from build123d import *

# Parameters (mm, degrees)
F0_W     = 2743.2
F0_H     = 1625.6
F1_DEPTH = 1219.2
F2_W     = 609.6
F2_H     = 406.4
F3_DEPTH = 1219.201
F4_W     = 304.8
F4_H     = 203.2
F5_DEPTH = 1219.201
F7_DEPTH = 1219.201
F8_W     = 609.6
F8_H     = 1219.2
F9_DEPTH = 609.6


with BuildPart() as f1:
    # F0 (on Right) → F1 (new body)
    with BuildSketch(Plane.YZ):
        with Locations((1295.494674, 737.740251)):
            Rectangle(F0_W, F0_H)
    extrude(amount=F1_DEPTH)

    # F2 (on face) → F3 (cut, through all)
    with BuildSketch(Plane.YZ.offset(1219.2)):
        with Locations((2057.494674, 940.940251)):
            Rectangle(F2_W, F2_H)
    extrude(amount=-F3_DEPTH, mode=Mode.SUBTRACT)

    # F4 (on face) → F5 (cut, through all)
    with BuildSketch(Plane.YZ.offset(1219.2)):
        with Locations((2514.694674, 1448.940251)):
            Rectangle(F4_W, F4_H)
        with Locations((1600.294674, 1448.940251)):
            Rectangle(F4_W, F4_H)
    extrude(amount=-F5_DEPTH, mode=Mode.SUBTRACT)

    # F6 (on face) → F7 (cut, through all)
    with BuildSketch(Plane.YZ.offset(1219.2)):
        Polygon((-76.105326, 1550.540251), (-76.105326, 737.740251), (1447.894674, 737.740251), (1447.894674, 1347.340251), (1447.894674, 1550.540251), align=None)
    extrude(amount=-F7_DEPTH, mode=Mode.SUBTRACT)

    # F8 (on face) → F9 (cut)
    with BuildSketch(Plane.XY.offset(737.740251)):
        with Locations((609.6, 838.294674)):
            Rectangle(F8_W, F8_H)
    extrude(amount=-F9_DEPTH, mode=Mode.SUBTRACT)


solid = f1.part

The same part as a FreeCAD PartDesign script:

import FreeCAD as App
import Part
import Sketcher
Q = App.Units.Quantity

doc = App.newDocument("Part")
params = doc.addObject("Spreadsheet::Sheet", "Params")
for row, (alias, value) in enumerate([
    ("sketch1_width", "108 in"),
    ("sketch1_height", "64 in"),
    ("pad1_length", "48 in"),
    ("sketch2_width", "24 in"),
    ("sketch2_height", "16 in"),
    ("sketch3_width", "12 in"),
    ("sketch3_height", "8 in"),
    ("sketch4_width", "60 in"),
    ("sketch4_height", "32 in"),
    ("sketch5_width", "24 in"),
    ("sketch5_height", "48 in"),
    ("pocket4_length", "24 in"),
], start=1):
    params.set(f"A{row}", alias)
    params.set(f"B{row}", "=" + value)
    params.setAlias(f"B{row}", alias)

body = doc.addObject("PartDesign::Body", "Body")

sketch1 = body.newObject("Sketcher::SketchObject", "Sketch")
sketch1.AttachmentSupport = (doc.getObject("YZ_Plane"), [""])
sketch1.MapMode = "FlatFace"
sketch1.addGeometry([
    Part.LineSegment(App.Vector(-76, 1551, 0), App.Vector(-76, -75, 0)),
    Part.LineSegment(App.Vector(-76, -75, 0), App.Vector(2667, -75, 0)),
    Part.LineSegment(App.Vector(2667, -75, 0), App.Vector(2667, 1551, 0)),
    Part.LineSegment(App.Vector(2667, 1551, 0), App.Vector(-76, 1551, 0)),
], False)
sketch1.addConstraint([
    Sketcher.Constraint("Coincident", 0, 2, 1, 1),
    Sketcher.Constraint("Coincident", 1, 2, 2, 1),
    Sketcher.Constraint("Coincident", 2, 2, 3, 1),
    Sketcher.Constraint("Coincident", 3, 2, 0, 1),
    Sketcher.Constraint("Vertical", 0),
    Sketcher.Constraint("Horizontal", 1),
    Sketcher.Constraint("Vertical", 2),
    Sketcher.Constraint("Horizontal", 3),
    Sketcher.Constraint("DistanceX", 1, 1, 1, 2, Q("108 in")),
    Sketcher.Constraint("DistanceY", 0, 2, 0, 1, Q("64 in")),
    Sketcher.Constraint("DistanceY", 0, 2, -1, 1, Q("75.059749 mm")),
    Sketcher.Constraint("DistanceX", 0, 2, -1, 1, Q("76.105326 mm")),
])
sketch1.setExpression("Constraints[8]", "Params.sketch1_width")
sketch1.setExpression("Constraints[9]", "Params.sketch1_height")
pad1 = body.newObject("PartDesign::Pad", "Pad")
pad1.Profile = sketch1
pad1.setExpression("Length", "Params.pad1_length")

sketch2 = body.newObject("Sketcher::SketchObject", "Sketch001")
sketch2.AttachmentSupport = (doc.getObject("YZ_Plane"), [""])
sketch2.MapMode = "FlatFace"
sketch2.AttachmentOffset = App.Placement(App.Vector(0, 0, 48 * 25.4), App.Rotation())
sketch2.addGeometry([
    Part.LineSegment(App.Vector(1753, 1144, 0), App.Vector(1753, 738, 0)),
    Part.LineSegment(App.Vector(1753, 738, 0), App.Vector(2362, 738, 0)),
    Part.LineSegment(App.Vector(2362, 738, 0), App.Vector(2362, 1144, 0)),
    Part.LineSegment(App.Vector(2362, 1144, 0), App.Vector(1753, 1144, 0)),
], False)
sketch2.addConstraint([
    Sketcher.Constraint("Coincident", 0, 2, 1, 1),
    Sketcher.Constraint("Coincident", 1, 2, 2, 1),
    Sketcher.Constraint("Coincident", 2, 2, 3, 1),
    Sketcher.Constraint("Coincident", 3, 2, 0, 1),
    Sketcher.Constraint("Vertical", 0),
    Sketcher.Constraint("Horizontal", 1),
    Sketcher.Constraint("Vertical", 2),
    Sketcher.Constraint("Horizontal", 3),
    Sketcher.Constraint("DistanceX", 1, 1, 1, 2, Q("24 in")),
    Sketcher.Constraint("DistanceY", 0, 2, 0, 1, Q("16 in")),
    Sketcher.Constraint("DistanceY", -1, 1, 0, 2, Q("737.740251 mm")),
    Sketcher.Constraint("DistanceX", -1, 1, 0, 2, Q("1752.694674 mm")),
])
sketch2.setExpression("Constraints[8]", "Params.sketch2_width")
sketch2.setExpression("Constraints[9]", "Params.sketch2_height")
pocket1 = body.newObject("PartDesign::Pocket", "Pocket")
pocket1.Profile = sketch2
pocket1.Type = "ThroughAll"

sketch3 = body.newObject("Sketcher::SketchObject", "Sketch002")
sketch3.AttachmentSupport = (doc.getObject("YZ_Plane"), [""])
sketch3.MapMode = "FlatFace"
sketch3.AttachmentOffset = App.Placement(App.Vector(0, 0, 48 * 25.4), App.Rotation())
sketch3.addGeometry([
    Part.LineSegment(App.Vector(2362, 1551, 0), App.Vector(2362, 1347, 0)),
    Part.LineSegment(App.Vector(2362, 1347, 0), App.Vector(2667, 1347, 0)),
    Part.LineSegment(App.Vector(2667, 1347, 0), App.Vector(2667, 1551, 0)),
    Part.LineSegment(App.Vector(2667, 1551, 0), App.Vector(2362, 1551, 0)),
    Part.LineSegment(App.Vector(1448, 1551, 0), App.Vector(1448, 1347, 0)),
    Part.LineSegment(App.Vector(1448, 1347, 0), App.Vector(1753, 1347, 0)),
    Part.LineSegment(App.Vector(1753, 1347, 0), App.Vector(1753, 1551, 0)),
    Part.LineSegment(App.Vector(1753, 1551, 0), App.Vector(1448, 1551, 0)),
], False)
sketch3.addConstraint([
    Sketcher.Constraint("Coincident", 0, 2, 1, 1),
    Sketcher.Constraint("Coincident", 1, 2, 2, 1),
    Sketcher.Constraint("Coincident", 2, 2, 3, 1),
    Sketcher.Constraint("Coincident", 3, 2, 0, 1),
    Sketcher.Constraint("Coincident", 4, 2, 5, 1),
    Sketcher.Constraint("Coincident", 5, 2, 6, 1),
    Sketcher.Constraint("Coincident", 6, 2, 7, 1),
    Sketcher.Constraint("Coincident", 7, 2, 4, 1),
    Sketcher.Constraint("Vertical", 0),
    Sketcher.Constraint("Horizontal", 1),
    Sketcher.Constraint("Vertical", 2),
    Sketcher.Constraint("Horizontal", 3),
    Sketcher.Constraint("Vertical", 4),
    Sketcher.Constraint("Horizontal", 5),
    Sketcher.Constraint("Vertical", 6),
    Sketcher.Constraint("Horizontal", 7),
    Sketcher.Constraint("Horizontal", 1, 2, 4, 2),
    Sketcher.Constraint("Horizontal", 3, 2, 6, 2),
    Sketcher.Constraint("Equal", 3, 5),
    Sketcher.Constraint("DistanceX", 1, 1, 1, 2, Q("12 in")),
    Sketcher.Constraint("DistanceY", 0, 2, 0, 1, Q("8 in")),
    Sketcher.Constraint("DistanceX", 4, 2, 0, 2, Q("36 in")),
    Sketcher.Constraint("DistanceY", -1, 1, 0, 2, Q("1347.340251 mm")),
    Sketcher.Constraint("DistanceX", -1, 1, 0, 2, Q("2362.294674 mm")),
])
sketch3.setExpression("Constraints[19]", "Params.sketch3_width")
sketch3.setExpression("Constraints[20]", "Params.sketch3_height")
pocket2 = body.newObject("PartDesign::Pocket", "Pocket001")
pocket2.Profile = sketch3
pocket2.Type = "ThroughAll"

sketch4 = body.newObject("Sketcher::SketchObject", "Sketch003")
sketch4.AttachmentSupport = (doc.getObject("YZ_Plane"), [""])
sketch4.MapMode = "FlatFace"
sketch4.AttachmentOffset = App.Placement(App.Vector(0, 0, 48 * 25.4), App.Rotation())
sketch4.addGeometry([
    Part.LineSegment(App.Vector(-76, 1551, 0), App.Vector(-76, 738, 0)),
    Part.LineSegment(App.Vector(-76, 738, 0), App.Vector(1448, 738, 0)),
    Part.LineSegment(App.Vector(1448, 738, 0), App.Vector(1448, 1551, 0)),
    Part.LineSegment(App.Vector(1448, 1551, 0), App.Vector(-76, 1551, 0)),
], False)
sketch4.addConstraint([
    Sketcher.Constraint("Coincident", 0, 2, 1, 1),
    Sketcher.Constraint("Coincident", 1, 2, 2, 1),
    Sketcher.Constraint("Coincident", 2, 2, 3, 1),
    Sketcher.Constraint("Coincident", 3, 2, 0, 1),
    Sketcher.Constraint("Vertical", 0),
    Sketcher.Constraint("Horizontal", 1),
    Sketcher.Constraint("Vertical", 2),
    Sketcher.Constraint("Horizontal", 3),
    Sketcher.Constraint("DistanceX", 1, 1, 1, 2, Q("60 in")),
    Sketcher.Constraint("DistanceY", 0, 2, 0, 1, Q("32 in")),
    Sketcher.Constraint("DistanceY", -1, 1, 0, 2, Q("737.740251 mm")),
    Sketcher.Constraint("DistanceX", 0, 2, -1, 1, Q("76.105326 mm")),
])
sketch4.setExpression("Constraints[8]", "Params.sketch4_width")
sketch4.setExpression("Constraints[9]", "Params.sketch4_height")
pocket3 = body.newObject("PartDesign::Pocket", "Pocket002")
pocket3.Profile = sketch4
pocket3.Type = "ThroughAll"

sketch5 = body.newObject("Sketcher::SketchObject", "Sketch004")
sketch5.AttachmentSupport = (doc.getObject("XY_Plane"), [""])
sketch5.MapMode = "FlatFace"
sketch5.AttachmentOffset = App.Placement(App.Vector(0, 0, 737.740251), App.Rotation())
sketch5.addGeometry([
    Part.LineSegment(App.Vector(305, 1448, 0), App.Vector(305, 229, 0)),
    Part.LineSegment(App.Vector(305, 229, 0), App.Vector(914, 229, 0)),
    Part.LineSegment(App.Vector(914, 229, 0), App.Vector(914, 1448, 0)),
    Part.LineSegment(App.Vector(914, 1448, 0), App.Vector(305, 1448, 0)),
], False)
sketch5.addConstraint([
    Sketcher.Constraint("Coincident", 0, 2, 1, 1),
    Sketcher.Constraint("Coincident", 1, 2, 2, 1),
    Sketcher.Constraint("Coincident", 2, 2, 3, 1),
    Sketcher.Constraint("Coincident", 3, 2, 0, 1),
    Sketcher.Constraint("Vertical", 0),
    Sketcher.Constraint("Horizontal", 1),
    Sketcher.Constraint("Vertical", 2),
    Sketcher.Constraint("Horizontal", 3),
    Sketcher.Constraint("DistanceX", 1, 1, 1, 2, Q("24 in")),
    Sketcher.Constraint("DistanceY", 0, 2, 0, 1, Q("48 in")),
    Sketcher.Constraint("DistanceX", -1, 1, 0, 2, Q("12 in")),
    Sketcher.Constraint("DistanceY", -1, 1, 0, 2, Q("228.694674 mm")),
])
sketch5.setExpression("Constraints[8]", "Params.sketch5_width")
sketch5.setExpression("Constraints[9]", "Params.sketch5_height")
pocket4 = body.newObject("PartDesign::Pocket", "Pocket003")
pocket4.Profile = sketch5
pocket4.setExpression("Length", "Params.pocket4_length")

doc.recompute()
